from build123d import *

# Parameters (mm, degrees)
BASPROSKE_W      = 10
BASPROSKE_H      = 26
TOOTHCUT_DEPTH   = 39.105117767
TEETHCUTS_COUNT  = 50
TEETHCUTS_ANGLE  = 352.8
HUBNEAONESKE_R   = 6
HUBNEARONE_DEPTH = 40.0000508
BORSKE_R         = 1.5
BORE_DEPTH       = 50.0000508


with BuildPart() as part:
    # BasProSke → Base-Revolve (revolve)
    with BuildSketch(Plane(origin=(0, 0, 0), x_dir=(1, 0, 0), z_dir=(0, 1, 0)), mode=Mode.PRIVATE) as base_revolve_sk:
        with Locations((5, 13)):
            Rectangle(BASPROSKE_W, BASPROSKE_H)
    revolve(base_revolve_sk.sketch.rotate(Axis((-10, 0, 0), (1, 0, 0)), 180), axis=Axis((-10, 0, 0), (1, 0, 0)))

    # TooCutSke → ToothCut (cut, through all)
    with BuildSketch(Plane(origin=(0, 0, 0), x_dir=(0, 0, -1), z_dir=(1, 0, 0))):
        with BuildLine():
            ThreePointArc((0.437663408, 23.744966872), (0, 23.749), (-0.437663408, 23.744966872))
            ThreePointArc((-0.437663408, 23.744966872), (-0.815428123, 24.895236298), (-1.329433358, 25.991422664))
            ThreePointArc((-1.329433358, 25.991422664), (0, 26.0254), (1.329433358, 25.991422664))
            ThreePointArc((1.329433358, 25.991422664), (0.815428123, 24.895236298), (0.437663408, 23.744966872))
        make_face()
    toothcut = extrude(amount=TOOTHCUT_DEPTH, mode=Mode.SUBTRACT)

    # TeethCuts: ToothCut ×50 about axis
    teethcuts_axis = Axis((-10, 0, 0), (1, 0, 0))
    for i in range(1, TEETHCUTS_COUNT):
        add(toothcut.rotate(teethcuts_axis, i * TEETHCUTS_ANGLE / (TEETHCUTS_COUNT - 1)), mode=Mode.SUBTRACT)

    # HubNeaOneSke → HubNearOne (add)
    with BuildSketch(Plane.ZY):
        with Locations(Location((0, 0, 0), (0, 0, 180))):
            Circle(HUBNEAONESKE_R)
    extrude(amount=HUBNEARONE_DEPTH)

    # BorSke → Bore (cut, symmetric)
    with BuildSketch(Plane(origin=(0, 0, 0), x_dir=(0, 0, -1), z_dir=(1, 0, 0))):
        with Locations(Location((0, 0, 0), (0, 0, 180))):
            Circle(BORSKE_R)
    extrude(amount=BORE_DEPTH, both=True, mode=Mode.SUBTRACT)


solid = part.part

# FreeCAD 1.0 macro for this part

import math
import FreeCAD as App
import Part
import Sketcher


def add_polygon(sketch, points):
    """Adds a closed chain of lines whose ends are joined by coincident constraints."""
    first, n = sketch.GeometryCount, len(points)
    for a, b in zip(points, points[1:] + points[:1]):
        sketch.addGeometry(Part.LineSegment(App.Vector(*a, 0), App.Vector(*b, 0)), False)
    for i in range(n):
        sketch.addConstraint(Sketcher.Constraint("Coincident", first + i, 2, first + (i + 1) % n, 1))

doc = App.newDocument("Part")
params = doc.addObject("Spreadsheet::Sheet", "Params")
for row, (alias, value) in enumerate([
    ("sketch1_width", "10 mm"),
    ("sketch1_height", "26 mm"),
    ("revolution_angle", "360 deg"),
    ("sketch2_radius", "10 mm"),
    ("sketch3_diameter", "12 mm"),
    ("pad1_length", "40.000051 mm"),
    ("sketch4_diameter", "3 mm"),
    ("pocket2_length", "100.000102 mm"),
], start=1):
    params.set(f"A{row}", alias)
    params.set(f"B{row}", "=" + value)
    params.setAlias(f"B{row}", alias)

body = doc.addObject("PartDesign::Body", "Body")

# Sketch on XZ plane
sketch1 = body.newObject("Sketcher::SketchObject", "Sketch")
sketch1.AttachmentSupport = (doc.getObject("XZ_Plane"), [""])
sketch1.MapMode = "FlatFace"
add_polygon(sketch1, [(0, -26), (0, 0), (10, 0), (10, -26)])  # lines 0-3
sketch1.addConstraint([
    Sketcher.Constraint("Vertical", 0),
    Sketcher.Constraint("Horizontal", 1),
    Sketcher.Constraint("Vertical", 2),
    Sketcher.Constraint("Horizontal", 3),
    Sketcher.Constraint("Coincident", 0, 2, -1, 1),
    Sketcher.Constraint("DistanceX", 1, 1, 1, 2, 10.0),
    Sketcher.Constraint("DistanceY", 0, 1, 0, 2, 26.0),
])
sketch1.setExpression("Constraints[9]", "Params.sketch1_width")
sketch1.setExpression("Constraints[10]", "Params.sketch1_height")
revolution = body.newObject("PartDesign::Revolution", "Revolution")
revolution.Profile = sketch1
revolution.ReferenceAxis = (sketch1, ["H_Axis"])
revolution.setExpression("Angle", "Params.revolution_angle")

# Sketch on YZ plane
sketch2 = body.newObject("Sketcher::SketchObject", "Sketch001")
sketch2.AttachmentSupport = (doc.getObject("YZ_Plane"), [""])
sketch2.MapMode = "FlatFace"
sketch2.addGeometry([
    Part.ArcOfCircle(Part.Circle(App.Vector(0, 0, 0), App.Vector(0, 0, 1), 23.7), math.radians(-1.06), math.radians(1.06)),
    Part.ArcOfCircle(Part.Circle(App.Vector(21.2, -10.1, 0), App.Vector(0, 0, 1), 10), math.radians(61.41), math.radians(75.29)),
    Part.ArcOfCircle(Part.Circle(App.Vector(0, 0, 0), App.Vector(0, 0, 1), 26), math.radians(-2.93), math.radians(2.93)),
    Part.ArcOfCircle(Part.Circle(App.Vector(21.2, 10.1, 0), App.Vector(0, 0, 1), 10), math.radians(-75.29), math.radians(-61.41)),
], False)
sketch2.addConstraint([
    Sketcher.Constraint("Coincident", 0, 1, 1, 2),
    Sketcher.Constraint("Coincident", 1, 1, 2, 1),
    Sketcher.Constraint("Coincident", 2, 2, 3, 2),
    Sketcher.Constraint("Coincident", 3, 1, 0, 2),
    Sketcher.Constraint("Coincident", 0, 3, -1, 1),
    Sketcher.Constraint("Coincident", 2, 3, -1, 1),
    Sketcher.Constraint("Equal", 1, 3),
    Sketcher.Constraint("Symmetric", 1, 3, 3, 3, -1),
    Sketcher.Constraint("Radius", 1, 10.0),
    Sketcher.Constraint("Radius", 0, 23.749001),
    Sketcher.Constraint("Radius", 2, 26.0254),
    Sketcher.Constraint("DistanceX", -1, 1, 1, 3, 21.20564),
    Sketcher.Constraint("DistanceX", 0, 3, 0, 1, 23.744968),
])
sketch2.setExpression("Constraints[8]", "Params.sketch2_radius")
pocket1 = body.newObject("PartDesign::Pocket", "Pocket")
pocket1.Profile = sketch2
pocket1.Type = "ThroughAll"
pocket1.Reversed = True
doc.recompute()

polarpattern = body.newObject("PartDesign::PolarPattern", "PolarPattern")
polarpattern.Originals = [pocket1]
polarpattern.Axis = (doc.getObject("X_Axis"), [""])
polarpattern.Angle = 360
polarpattern.Occurrences = 50
body.Tip = polarpattern

# Sketch on YZ plane
sketch3 = body.newObject("Sketcher::SketchObject", "Sketch002")
sketch3.AttachmentSupport = (doc.getObject("YZ_Plane"), [""])
sketch3.MapMode = "FlatFace"
sketch3.addGeometry(Part.Circle(App.Vector(0, 0, 0), App.Vector(0, 0, 1), 6), False)
sketch3.addConstraint([
    Sketcher.Constraint("Coincident", 0, 3, -1, 1),
    Sketcher.Constraint("Diameter", 0, 12.0),
])
sketch3.setExpression("Constraints[1]", "Params.sketch3_diameter")
pad1 = body.newObject("PartDesign::Pad", "Pad")
pad1.Profile = sketch3
pad1.setExpression("Length", "Params.pad1_length")
pad1.Reversed = True

# Sketch on YZ plane
sketch4 = body.newObject("Sketcher::SketchObject", "Sketch003")
sketch4.AttachmentSupport = (doc.getObject("YZ_Plane"), [""])
sketch4.MapMode = "FlatFace"
sketch4.addGeometry(Part.Circle(App.Vector(0, 0, 0), App.Vector(0, 0, 1), 1.5), False)
sketch4.addConstraint([
    Sketcher.Constraint("Coincident", 0, 3, -1, 1),
    Sketcher.Constraint("Diameter", 0, 3.0),
])
sketch4.setExpression("Constraints[1]", "Params.sketch4_diameter")
pocket2 = body.newObject("PartDesign::Pocket", "Pocket001")
pocket2.Profile = sketch4
pocket2.setExpression("Length", "Params.pocket2_length")
pocket2.Midplane = True

doc.recompute()
